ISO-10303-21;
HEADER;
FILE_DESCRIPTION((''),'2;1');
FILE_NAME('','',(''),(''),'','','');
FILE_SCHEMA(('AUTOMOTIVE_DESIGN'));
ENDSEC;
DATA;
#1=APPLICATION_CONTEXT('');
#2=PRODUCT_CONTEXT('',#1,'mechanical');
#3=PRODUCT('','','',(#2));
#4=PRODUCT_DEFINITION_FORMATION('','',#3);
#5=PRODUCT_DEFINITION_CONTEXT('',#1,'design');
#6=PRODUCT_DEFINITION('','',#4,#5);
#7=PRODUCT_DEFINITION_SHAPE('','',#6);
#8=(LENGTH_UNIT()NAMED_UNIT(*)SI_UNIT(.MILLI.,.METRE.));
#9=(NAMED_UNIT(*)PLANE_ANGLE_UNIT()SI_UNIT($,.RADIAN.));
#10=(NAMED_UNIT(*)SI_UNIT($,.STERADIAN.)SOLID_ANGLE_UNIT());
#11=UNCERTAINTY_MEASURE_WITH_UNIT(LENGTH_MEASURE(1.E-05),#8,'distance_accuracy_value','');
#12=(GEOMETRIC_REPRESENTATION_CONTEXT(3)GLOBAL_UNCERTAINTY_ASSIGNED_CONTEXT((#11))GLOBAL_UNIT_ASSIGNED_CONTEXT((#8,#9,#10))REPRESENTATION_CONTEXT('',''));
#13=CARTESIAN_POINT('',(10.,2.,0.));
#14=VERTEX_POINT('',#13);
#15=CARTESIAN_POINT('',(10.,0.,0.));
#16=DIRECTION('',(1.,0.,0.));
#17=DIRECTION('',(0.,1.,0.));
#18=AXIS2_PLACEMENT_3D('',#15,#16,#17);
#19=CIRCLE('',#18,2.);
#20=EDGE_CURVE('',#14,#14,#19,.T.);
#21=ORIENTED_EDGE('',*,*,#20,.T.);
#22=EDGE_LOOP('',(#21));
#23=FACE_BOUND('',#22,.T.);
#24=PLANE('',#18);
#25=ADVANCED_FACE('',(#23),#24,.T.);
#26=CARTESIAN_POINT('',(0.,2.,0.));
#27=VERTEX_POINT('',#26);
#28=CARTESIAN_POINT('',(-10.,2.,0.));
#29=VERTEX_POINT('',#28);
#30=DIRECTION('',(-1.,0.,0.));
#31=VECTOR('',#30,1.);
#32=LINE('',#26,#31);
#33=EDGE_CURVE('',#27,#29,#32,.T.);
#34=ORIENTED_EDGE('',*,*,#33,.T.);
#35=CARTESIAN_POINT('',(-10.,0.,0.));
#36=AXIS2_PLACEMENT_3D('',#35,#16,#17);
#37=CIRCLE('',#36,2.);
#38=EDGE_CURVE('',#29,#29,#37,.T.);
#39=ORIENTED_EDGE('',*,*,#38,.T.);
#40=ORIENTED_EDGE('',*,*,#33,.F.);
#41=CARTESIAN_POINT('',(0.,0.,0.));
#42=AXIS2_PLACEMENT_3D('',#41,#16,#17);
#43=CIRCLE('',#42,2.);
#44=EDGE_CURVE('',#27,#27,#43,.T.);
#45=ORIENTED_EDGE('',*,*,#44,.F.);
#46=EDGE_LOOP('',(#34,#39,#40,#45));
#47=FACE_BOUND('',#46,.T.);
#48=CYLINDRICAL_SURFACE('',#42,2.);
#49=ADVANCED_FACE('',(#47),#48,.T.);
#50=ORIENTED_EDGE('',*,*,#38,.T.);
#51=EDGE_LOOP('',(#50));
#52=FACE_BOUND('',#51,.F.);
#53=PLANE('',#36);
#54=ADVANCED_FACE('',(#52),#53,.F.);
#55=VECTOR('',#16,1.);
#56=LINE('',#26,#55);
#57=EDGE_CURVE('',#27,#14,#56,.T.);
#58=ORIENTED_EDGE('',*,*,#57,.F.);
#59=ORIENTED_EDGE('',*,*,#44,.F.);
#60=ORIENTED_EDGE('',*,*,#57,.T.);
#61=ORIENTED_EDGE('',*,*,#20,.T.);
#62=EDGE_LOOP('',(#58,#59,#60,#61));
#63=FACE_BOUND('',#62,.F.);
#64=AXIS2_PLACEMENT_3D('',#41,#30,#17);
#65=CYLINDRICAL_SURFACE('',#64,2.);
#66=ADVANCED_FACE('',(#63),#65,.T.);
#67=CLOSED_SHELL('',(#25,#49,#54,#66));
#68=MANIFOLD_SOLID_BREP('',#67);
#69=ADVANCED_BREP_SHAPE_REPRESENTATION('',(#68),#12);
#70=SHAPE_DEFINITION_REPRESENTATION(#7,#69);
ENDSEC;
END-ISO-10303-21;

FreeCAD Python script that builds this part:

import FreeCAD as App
import Part
import Sketcher

doc = App.newDocument("Part")
body = doc.addObject("PartDesign::Body", "Body")

# Sketch on YZ plane
sketch1 = body.newObject("Sketcher::SketchObject", "Sketch")
sketch1.AttachmentSupport = (doc.getObject("YZ_Plane"), [""])
sketch1.MapMode = "FlatFace"
sketch1.addGeometry(Part.Circle(App.Vector(0, 0, 0), App.Vector(0, 0, 1), 2), False)
sketch1.addConstraint([
    Sketcher.Constraint("Coincident", 0, 3, -1, 1),
    Sketcher.Constraint("Diameter", 0, 4.0),
])
pad1 = body.newObject("PartDesign::Pad", "Pad")
pad1.Profile = sketch1
pad1.Length = 20
pad1.Midplane = True

doc.recompute()
